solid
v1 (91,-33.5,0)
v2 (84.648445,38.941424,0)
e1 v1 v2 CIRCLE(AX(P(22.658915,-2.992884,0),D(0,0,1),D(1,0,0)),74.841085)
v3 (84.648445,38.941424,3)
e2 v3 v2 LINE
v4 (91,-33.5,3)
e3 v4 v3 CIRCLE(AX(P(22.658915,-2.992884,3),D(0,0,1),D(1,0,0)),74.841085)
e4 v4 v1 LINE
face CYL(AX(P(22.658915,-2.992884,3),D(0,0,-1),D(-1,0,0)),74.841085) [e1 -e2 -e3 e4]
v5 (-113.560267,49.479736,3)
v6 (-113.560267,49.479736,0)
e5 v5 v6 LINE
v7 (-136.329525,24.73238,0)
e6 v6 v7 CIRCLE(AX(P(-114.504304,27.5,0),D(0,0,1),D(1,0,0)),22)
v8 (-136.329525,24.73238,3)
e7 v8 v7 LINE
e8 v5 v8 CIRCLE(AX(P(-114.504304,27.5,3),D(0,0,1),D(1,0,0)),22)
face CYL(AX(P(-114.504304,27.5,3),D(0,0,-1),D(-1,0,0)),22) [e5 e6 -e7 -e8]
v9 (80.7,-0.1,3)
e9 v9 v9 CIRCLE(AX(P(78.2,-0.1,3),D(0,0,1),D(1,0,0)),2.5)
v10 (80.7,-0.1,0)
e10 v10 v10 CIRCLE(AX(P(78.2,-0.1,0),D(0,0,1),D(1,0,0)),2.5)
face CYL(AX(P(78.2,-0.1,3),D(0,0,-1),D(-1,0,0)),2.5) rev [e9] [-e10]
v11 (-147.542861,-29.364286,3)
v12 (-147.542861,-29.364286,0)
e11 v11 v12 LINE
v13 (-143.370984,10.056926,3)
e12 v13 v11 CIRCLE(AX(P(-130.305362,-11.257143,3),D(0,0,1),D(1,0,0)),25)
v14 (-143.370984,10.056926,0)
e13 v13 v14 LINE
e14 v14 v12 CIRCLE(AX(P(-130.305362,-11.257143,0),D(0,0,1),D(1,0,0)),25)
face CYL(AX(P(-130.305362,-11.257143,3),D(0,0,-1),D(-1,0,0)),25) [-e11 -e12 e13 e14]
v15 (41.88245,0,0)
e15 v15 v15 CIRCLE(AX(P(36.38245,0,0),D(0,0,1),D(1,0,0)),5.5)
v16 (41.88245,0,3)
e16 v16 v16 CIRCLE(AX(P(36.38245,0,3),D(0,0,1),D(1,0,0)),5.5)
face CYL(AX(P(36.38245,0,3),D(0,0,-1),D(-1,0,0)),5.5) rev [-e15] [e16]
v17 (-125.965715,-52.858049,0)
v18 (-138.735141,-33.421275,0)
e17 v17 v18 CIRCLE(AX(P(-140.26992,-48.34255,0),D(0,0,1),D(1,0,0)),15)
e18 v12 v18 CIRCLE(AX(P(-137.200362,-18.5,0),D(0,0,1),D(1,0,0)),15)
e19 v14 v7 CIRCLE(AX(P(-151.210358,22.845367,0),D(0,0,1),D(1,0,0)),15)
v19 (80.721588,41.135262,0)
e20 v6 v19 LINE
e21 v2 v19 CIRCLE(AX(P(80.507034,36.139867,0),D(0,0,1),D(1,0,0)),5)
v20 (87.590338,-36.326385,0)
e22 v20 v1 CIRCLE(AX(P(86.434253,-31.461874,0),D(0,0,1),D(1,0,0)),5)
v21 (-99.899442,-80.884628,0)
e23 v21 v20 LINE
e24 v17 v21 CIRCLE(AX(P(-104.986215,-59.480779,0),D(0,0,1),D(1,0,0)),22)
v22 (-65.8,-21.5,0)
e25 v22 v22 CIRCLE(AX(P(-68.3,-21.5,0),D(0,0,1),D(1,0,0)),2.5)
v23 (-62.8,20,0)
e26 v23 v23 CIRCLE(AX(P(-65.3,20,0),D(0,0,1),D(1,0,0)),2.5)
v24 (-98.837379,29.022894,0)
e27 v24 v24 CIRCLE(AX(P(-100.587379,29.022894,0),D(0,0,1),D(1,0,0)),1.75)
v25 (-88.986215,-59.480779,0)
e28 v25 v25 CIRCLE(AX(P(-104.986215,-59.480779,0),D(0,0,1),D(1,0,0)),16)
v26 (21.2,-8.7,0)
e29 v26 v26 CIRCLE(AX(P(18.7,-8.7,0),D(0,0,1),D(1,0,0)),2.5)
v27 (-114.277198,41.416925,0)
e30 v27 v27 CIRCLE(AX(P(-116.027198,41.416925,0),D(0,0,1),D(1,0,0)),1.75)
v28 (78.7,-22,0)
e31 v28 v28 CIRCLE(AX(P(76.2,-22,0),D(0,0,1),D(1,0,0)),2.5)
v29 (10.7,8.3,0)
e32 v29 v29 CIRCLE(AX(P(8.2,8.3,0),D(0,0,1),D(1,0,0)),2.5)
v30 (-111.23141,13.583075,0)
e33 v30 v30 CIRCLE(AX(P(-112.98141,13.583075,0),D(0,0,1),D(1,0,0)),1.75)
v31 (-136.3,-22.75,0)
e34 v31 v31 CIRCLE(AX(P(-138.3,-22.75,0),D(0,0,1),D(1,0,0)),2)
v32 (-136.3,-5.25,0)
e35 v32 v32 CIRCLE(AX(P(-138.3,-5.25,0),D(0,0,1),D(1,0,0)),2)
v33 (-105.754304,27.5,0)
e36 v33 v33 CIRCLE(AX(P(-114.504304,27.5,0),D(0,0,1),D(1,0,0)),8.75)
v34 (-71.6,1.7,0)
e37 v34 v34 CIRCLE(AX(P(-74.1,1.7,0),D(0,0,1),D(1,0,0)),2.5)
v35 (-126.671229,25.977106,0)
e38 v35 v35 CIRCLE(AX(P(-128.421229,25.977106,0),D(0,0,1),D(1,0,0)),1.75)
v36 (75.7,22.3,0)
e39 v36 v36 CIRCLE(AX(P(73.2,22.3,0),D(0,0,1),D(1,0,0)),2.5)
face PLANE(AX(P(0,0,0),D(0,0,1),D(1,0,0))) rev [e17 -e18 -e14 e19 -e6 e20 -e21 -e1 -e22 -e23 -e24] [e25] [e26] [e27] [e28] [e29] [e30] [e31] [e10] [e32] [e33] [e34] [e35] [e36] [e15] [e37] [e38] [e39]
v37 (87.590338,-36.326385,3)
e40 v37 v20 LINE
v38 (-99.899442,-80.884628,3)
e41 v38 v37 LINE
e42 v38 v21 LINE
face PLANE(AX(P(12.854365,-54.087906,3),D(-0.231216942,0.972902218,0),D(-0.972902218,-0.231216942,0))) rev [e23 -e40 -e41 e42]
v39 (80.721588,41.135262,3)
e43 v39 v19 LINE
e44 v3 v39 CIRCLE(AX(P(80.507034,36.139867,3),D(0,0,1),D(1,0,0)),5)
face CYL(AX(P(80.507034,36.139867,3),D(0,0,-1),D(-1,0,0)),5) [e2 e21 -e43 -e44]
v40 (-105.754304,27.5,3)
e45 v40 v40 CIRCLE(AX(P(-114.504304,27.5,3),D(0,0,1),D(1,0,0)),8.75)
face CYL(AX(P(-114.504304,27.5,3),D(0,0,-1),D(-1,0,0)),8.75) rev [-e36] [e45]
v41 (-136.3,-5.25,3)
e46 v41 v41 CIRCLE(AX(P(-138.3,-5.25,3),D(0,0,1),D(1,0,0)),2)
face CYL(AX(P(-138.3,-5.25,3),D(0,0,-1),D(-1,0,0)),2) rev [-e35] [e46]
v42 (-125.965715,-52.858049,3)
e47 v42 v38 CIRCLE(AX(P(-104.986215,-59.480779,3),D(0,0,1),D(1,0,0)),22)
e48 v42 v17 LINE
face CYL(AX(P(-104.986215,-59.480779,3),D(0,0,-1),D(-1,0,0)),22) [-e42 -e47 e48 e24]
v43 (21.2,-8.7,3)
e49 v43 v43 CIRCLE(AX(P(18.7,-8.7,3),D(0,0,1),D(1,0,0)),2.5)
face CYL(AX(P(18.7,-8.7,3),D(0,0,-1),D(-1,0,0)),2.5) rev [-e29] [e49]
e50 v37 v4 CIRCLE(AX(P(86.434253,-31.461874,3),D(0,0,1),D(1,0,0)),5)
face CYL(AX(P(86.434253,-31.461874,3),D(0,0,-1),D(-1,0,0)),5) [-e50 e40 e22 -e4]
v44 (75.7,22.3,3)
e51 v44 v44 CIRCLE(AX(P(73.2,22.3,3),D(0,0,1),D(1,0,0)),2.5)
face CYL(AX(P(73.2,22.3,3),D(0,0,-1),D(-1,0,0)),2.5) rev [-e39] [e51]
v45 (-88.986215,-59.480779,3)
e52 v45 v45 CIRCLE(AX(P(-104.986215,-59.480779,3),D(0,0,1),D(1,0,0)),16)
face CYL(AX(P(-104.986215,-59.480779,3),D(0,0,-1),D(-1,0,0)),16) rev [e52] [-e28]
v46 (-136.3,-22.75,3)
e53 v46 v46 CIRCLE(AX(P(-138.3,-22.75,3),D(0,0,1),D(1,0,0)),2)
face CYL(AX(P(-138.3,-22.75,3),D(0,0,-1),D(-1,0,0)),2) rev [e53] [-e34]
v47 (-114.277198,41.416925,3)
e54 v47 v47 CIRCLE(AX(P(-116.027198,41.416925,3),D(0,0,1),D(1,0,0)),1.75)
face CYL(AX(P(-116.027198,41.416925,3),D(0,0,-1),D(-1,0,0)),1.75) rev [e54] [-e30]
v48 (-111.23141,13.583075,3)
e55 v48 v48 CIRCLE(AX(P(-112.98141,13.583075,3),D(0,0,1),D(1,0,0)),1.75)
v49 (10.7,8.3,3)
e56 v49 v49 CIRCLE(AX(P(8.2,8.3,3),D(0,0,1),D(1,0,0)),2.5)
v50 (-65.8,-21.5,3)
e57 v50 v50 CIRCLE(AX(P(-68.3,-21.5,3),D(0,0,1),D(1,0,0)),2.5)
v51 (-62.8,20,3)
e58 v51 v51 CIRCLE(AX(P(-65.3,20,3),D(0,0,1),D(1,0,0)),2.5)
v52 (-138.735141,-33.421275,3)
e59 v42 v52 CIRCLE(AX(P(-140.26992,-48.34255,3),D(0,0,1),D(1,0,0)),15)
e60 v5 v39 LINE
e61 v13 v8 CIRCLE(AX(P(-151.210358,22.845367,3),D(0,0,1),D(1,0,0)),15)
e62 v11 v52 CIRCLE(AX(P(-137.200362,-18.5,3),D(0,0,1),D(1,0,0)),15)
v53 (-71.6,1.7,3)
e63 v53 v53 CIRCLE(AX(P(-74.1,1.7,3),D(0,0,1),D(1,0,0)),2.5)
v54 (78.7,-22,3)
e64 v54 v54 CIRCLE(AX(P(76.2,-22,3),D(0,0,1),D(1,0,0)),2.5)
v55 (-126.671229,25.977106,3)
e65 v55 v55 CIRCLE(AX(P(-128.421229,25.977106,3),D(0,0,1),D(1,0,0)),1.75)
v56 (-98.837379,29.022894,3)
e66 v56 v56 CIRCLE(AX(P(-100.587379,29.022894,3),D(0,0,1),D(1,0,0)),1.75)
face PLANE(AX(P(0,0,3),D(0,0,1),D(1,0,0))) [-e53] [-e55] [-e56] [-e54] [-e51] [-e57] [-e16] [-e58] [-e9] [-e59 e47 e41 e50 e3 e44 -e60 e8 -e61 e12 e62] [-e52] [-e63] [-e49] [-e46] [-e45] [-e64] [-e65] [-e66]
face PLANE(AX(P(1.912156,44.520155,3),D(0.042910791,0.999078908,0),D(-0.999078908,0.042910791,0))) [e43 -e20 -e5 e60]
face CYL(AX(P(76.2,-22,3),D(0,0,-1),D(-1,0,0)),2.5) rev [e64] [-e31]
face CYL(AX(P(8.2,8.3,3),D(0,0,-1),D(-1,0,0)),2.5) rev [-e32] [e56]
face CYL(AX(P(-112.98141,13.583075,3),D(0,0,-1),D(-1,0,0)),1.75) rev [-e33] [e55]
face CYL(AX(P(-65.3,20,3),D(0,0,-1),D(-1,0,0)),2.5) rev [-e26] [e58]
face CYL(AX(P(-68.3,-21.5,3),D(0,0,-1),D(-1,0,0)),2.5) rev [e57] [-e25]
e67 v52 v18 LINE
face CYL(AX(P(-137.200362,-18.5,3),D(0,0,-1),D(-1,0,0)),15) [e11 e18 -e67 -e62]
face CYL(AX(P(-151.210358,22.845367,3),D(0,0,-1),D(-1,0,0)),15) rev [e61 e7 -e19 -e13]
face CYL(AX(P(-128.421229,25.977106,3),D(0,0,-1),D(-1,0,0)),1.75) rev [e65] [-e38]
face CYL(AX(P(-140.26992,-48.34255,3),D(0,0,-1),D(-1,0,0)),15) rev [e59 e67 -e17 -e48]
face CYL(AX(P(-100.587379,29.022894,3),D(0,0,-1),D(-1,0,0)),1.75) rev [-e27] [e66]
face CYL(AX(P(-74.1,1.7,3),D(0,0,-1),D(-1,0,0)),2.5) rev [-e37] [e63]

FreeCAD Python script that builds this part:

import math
import FreeCAD as App
import Part
import Sketcher

V = App.Vector

doc = App.newDocument("Part")
body = doc.addObject("PartDesign::Body", "Body")

sketch1 = body.newObject("Sketcher::SketchObject", "Sketch")
sketch1.AttachmentSupport = (doc.getObject("XY_Plane"), [""])
sketch1.MapMode = "FlatFace"
sketch1.addGeometry([
    Part.ArcOfCircle(Part.Circle(V(-114.504304, 27.5, 0), V(0, 0, 1), 22), math.radians(87.540638), math.radians(187.227009)),
    Part.ArcOfCircle(Part.Circle(V(-151.210358, 22.845367, 0), V(0, 0, 1), 15), math.radians(-58.491511), math.radians(7.227009)),
    Part.ArcOfCircle(Part.Circle(V(-130.305362, -11.257143, 0), V(0, 0, 1), 25), math.radians(121.508489), math.radians(226.40946)),
    Part.ArcOfCircle(Part.Circle(V(-137.200362, -18.5, 0), V(0, 0, 1), 15), math.radians(-133.59054), math.radians(-95.872702)),
    Part.ArcOfCircle(Part.Circle(V(-140.26992, -48.34255, 0), V(0, 0, 1), 15), math.radians(-17.519671), math.radians(84.127298)),
    Part.ArcOfCircle(Part.Circle(V(-104.986215, -59.480779, 0), V(0, 0, 1), 22), math.radians(162.480329), math.radians(283.368728)),
    Part.LineSegment(V(-99.899443, -80.884628, 0), V(87.590338, -36.326385, 0)),
    Part.ArcOfCircle(Part.Circle(V(86.434253, -31.461874, 0), V(0, 0, 1), 5), math.radians(-76.631271), math.radians(-24.055744)),
    Part.ArcOfCircle(Part.Circle(V(22.658915, -2.992884, 0), V(0, 0, 1), 74.841085), math.radians(-24.055744), math.radians(34.077332)),
    Part.ArcOfCircle(Part.Circle(V(80.507034, 36.139867, 0), V(0, 0, 1), 5), math.radians(34.077332), math.radians(87.540638)),
    Part.LineSegment(V(80.721588, 41.135262, 0), V(-113.560267, 49.479736, 0)),
    Part.Circle(V(-104.986215, -59.480779, 0), V(0, 0, 1), 16),
    Part.Circle(V(-138.3, -22.75, 0), V(0, 0, 1), 2),
    Part.Circle(V(-68.3, -21.5, 0), V(0, 0, 1), 2.5),
    Part.Circle(V(76.2, -22, 0), V(0, 0, 1), 2.5),
    Part.Circle(V(-138.3, -5.25, 0), V(0, 0, 1), 2),
    Part.Circle(V(-74.1, 1.7, 0), V(0, 0, 1), 2.5),
    Part.Circle(V(-112.98141, 13.583075, 0), V(0, 0, 1), 1.75),
    Part.Circle(V(-128.421229, 25.977106, 0), V(0, 0, 1), 1.75),
    Part.Circle(V(-114.504304, 27.5, 0), V(0, 0, 1), 8.75),
    Part.Circle(V(-116.027198, 41.416925, 0), V(0, 0, 1), 1.75),
    Part.Circle(V(-100.587379, 29.022894, 0), V(0, 0, 1), 1.75),
    Part.Circle(V(-65.3, 20, 0), V(0, 0, 1), 2.5),
    Part.Circle(V(18.7, -8.7, 0), V(0, 0, 1), 2.5),
    Part.Circle(V(8.2, 8.3, 0), V(0, 0, 1), 2.5),
    Part.Circle(V(36.38245, 0, 0), V(0, 0, 1), 5.5),
    Part.Circle(V(78.2, -0.1, 0), V(0, 0, 1), 2.5),
    Part.Circle(V(73.2, 22.3, 0), V(0, 0, 1), 2.5),
], False)
sketch1.addConstraint([
    Sketcher.Constraint("Coincident", 0, 2, 1, 2),
    Sketcher.Constraint("Coincident", 1, 1, 2, 1),
    Sketcher.Constraint("Coincident", 2, 2, 3, 1),
    Sketcher.Constraint("Coincident", 3, 2, 4, 2),
    Sketcher.Constraint("Coincident", 4, 1, 5, 1),
    Sketcher.Constraint("Coincident", 5, 2, 6, 1),
    Sketcher.Constraint("Coincident", 6, 2, 7, 1),
    Sketcher.Constraint("Coincident", 7, 2, 8, 1),
    Sketcher.Constraint("Coincident", 8, 2, 9, 1),
    Sketcher.Constraint("Coincident", 9, 2, 10, 1),
    Sketcher.Constraint("Coincident", 10, 2, 0, 1),
    Sketcher.Constraint("Coincident", 11, 3, 5, 3),
    Sketcher.Constraint("Coincident", 19, 3, 0, 3),
    Sketcher.Constraint("PointOnObject", 25, 3, -1),
    Sketcher.Constraint("Diameter", 11, 32.0),
    Sketcher.Constraint("Diameter", 12, 4.0),
    Sketcher.Constraint("Diameter", 13, 5.0),
    Sketcher.Constraint("Diameter", 14, 5.0),
    Sketcher.Constraint("Diameter", 15, 4.0),
    Sketcher.Constraint("Diameter", 16, 5.0),
    Sketcher.Constraint("Diameter", 22, 5.0),
    Sketcher.Constraint("Diameter", 23, 5.0),
    Sketcher.Constraint("Diameter", 24, 5.0),
    Sketcher.Constraint("Diameter", 25, 11.0),
    Sketcher.Constraint("Diameter", 26, 5.0),
    Sketcher.Constraint("Diameter", 27, 5.0),
    Sketcher.Constraint("Radius", 0, 22.0),
    Sketcher.Constraint("Radius", 1, 15.0),
    Sketcher.Constraint("Radius", 2, 25.0),
    Sketcher.Constraint("Radius", 3, 15.0),
    Sketcher.Constraint("Radius", 4, 15.0),
    Sketcher.Constraint("Radius", 5, 22.0),
    Sketcher.Constraint("Radius", 7, 5.0),
    Sketcher.Constraint("Radius", 9, 5.0),
    Sketcher.Constraint("Diameter", 17, 3.5),
    Sketcher.Constraint("Diameter", 18, 3.5),
    Sketcher.Constraint("Diameter", 19, 17.5),
    Sketcher.Constraint("Diameter", 20, 3.5),
    Sketcher.Constraint("Diameter", 21, 3.5),
    Sketcher.Constraint("DistanceY", 14, 3, -1, 1, 22.0),
    Sketcher.Constraint("DistanceY", -1, 1, 22, 3, 20.0),
    Sketcher.Constraint("DistanceX", -1, 1, 7, 2, 91.0),
    Sketcher.Constraint("DistanceY", 3, 3, 0, 3, 46.0),
    Sketcher.Constraint("DistanceY", 13, 3, 0, 3, 49.0),
    Sketcher.Constraint("DistanceX", 13, 3, 22, 3, 3.0),
    Sketcher.Constraint("DistanceX", 13, 3, 23, 3, 87.0),
    Sketcher.Constraint("DistanceY", 23, 3, 24, 3, 17.0),
    Sketcher.Constraint("DistanceX", 24, 3, 14, 3, 68.0),
    Sketcher.Constraint("DistanceX", 14, 3, 26, 3, 2.0),
    Sketcher.Constraint("DistanceX", 27, 3, 26, 3, 5.0),
    Sketcher.Constraint("DistanceY", -1, 1, 0, 3, 27.5),
    Sketcher.Constraint("DistanceX", 12, 3, -1, 1, 138.3),
    Sketcher.Constraint("DistanceX", 13, 3, -1, 1, 68.3),
    Sketcher.Constraint("DistanceX", -1, 1, 14, 3, 76.2),
    Sketcher.Constraint("DistanceX", 15, 3, -1, 1, 138.3),
    Sketcher.Constraint("DistanceX", 16, 3, -1, 1, 74.1),
    Sketcher.Constraint("DistanceY", -1, 1, 16, 3, 1.7),
    Sketcher.Constraint("DistanceY", 23, 3, -1, 1, 8.7),
    Sketcher.Constraint("DistanceY", 26, 3, -1, 1, 0.1),
    Sketcher.Constraint("DistanceY", -1, 1, 27, 3, 22.3),
    Sketcher.Constraint("DistanceY", 7, 2, -1, 1, 33.5),
    Sketcher.Constraint("DistanceY", 12, 3, 15, 3, 17.5),
    Sketcher.Constraint("DistanceY", 12, 3, -1, 1, 22.75),
    Sketcher.Constraint("Radius", 8, 74.841085),
    Sketcher.Constraint("DistanceX", 3, 3, 2, 3, 6.895),
    Sketcher.Constraint("DistanceX", 20, 3, -1, 1, 116.027198),
    Sketcher.Constraint("DistanceX", 2, 2, 3, 3, 10.3425),
    Sketcher.Constraint("DistanceY", 4, 1, 4, 3, 4.515498),
    Sketcher.Constraint("DistanceX", 4, 1, 5, 3, 20.9795),
    Sketcher.Constraint("DistanceX", 3, 2, 5, 2, 38.835698),
    Sketcher.Constraint("Distance", 10, 194.460971),
    Sketcher.Constraint("DistanceX", 3, 3, -1, 1, 137.200362),
    Sketcher.Constraint("DistanceX", 4, 3, -1, 1, 140.26992),
    Sketcher.Constraint("DistanceX", 17, 3, -1, 1, 112.98141),
    Sketcher.Constraint("DistanceX", 18, 3, -1, 1, 128.421229),
    Sketcher.Constraint("DistanceX", 21, 3, -1, 1, 100.587379),
    Sketcher.Constraint("DistanceX", -1, 1, 25, 3, 36.38245),
    Sketcher.Constraint("DistanceY", -1, 1, 0, 2, 24.73238),
    Sketcher.Constraint("DistanceX", 3, 2, -1, 1, 138.735141),
    Sketcher.Constraint("DistanceX", -1, 1, 6, 2, 87.590338),
    Sketcher.Constraint("DistanceX", -1, 1, 9, 2, 80.721588),
    Sketcher.Constraint("DistanceY", -1, 1, 9, 2, 41.135262),
    Sketcher.Constraint("DistanceY", 2, 3, 1, 3, 34.10251),
    Sketcher.Constraint("DistanceX", 5, 3, 7, 3, 191.420468),
    Sketcher.Constraint("DistanceX", 8, 3, 7, 3, 63.775338),
    Sketcher.Constraint("DistanceY", 2, 3, 17, 3, 24.840218),
    Sketcher.Constraint("DistanceY", 17, 3, 18, 3, 12.39403),
    Sketcher.Constraint("DistanceY", 18, 3, 20, 3, 15.439819),
    Sketcher.Constraint("DistanceY", 21, 3, 20, 3, 12.39403),
    Sketcher.Constraint("DistanceY", 1, 1, 1, 3, 12.788441),
    Sketcher.Constraint("DistanceX", 9, 3, 8, 2, 4.14141),
])
pad1 = body.newObject("PartDesign::Pad", "Pad")
pad1.Profile = sketch1
pad1.Length = 3

doc.recompute()
